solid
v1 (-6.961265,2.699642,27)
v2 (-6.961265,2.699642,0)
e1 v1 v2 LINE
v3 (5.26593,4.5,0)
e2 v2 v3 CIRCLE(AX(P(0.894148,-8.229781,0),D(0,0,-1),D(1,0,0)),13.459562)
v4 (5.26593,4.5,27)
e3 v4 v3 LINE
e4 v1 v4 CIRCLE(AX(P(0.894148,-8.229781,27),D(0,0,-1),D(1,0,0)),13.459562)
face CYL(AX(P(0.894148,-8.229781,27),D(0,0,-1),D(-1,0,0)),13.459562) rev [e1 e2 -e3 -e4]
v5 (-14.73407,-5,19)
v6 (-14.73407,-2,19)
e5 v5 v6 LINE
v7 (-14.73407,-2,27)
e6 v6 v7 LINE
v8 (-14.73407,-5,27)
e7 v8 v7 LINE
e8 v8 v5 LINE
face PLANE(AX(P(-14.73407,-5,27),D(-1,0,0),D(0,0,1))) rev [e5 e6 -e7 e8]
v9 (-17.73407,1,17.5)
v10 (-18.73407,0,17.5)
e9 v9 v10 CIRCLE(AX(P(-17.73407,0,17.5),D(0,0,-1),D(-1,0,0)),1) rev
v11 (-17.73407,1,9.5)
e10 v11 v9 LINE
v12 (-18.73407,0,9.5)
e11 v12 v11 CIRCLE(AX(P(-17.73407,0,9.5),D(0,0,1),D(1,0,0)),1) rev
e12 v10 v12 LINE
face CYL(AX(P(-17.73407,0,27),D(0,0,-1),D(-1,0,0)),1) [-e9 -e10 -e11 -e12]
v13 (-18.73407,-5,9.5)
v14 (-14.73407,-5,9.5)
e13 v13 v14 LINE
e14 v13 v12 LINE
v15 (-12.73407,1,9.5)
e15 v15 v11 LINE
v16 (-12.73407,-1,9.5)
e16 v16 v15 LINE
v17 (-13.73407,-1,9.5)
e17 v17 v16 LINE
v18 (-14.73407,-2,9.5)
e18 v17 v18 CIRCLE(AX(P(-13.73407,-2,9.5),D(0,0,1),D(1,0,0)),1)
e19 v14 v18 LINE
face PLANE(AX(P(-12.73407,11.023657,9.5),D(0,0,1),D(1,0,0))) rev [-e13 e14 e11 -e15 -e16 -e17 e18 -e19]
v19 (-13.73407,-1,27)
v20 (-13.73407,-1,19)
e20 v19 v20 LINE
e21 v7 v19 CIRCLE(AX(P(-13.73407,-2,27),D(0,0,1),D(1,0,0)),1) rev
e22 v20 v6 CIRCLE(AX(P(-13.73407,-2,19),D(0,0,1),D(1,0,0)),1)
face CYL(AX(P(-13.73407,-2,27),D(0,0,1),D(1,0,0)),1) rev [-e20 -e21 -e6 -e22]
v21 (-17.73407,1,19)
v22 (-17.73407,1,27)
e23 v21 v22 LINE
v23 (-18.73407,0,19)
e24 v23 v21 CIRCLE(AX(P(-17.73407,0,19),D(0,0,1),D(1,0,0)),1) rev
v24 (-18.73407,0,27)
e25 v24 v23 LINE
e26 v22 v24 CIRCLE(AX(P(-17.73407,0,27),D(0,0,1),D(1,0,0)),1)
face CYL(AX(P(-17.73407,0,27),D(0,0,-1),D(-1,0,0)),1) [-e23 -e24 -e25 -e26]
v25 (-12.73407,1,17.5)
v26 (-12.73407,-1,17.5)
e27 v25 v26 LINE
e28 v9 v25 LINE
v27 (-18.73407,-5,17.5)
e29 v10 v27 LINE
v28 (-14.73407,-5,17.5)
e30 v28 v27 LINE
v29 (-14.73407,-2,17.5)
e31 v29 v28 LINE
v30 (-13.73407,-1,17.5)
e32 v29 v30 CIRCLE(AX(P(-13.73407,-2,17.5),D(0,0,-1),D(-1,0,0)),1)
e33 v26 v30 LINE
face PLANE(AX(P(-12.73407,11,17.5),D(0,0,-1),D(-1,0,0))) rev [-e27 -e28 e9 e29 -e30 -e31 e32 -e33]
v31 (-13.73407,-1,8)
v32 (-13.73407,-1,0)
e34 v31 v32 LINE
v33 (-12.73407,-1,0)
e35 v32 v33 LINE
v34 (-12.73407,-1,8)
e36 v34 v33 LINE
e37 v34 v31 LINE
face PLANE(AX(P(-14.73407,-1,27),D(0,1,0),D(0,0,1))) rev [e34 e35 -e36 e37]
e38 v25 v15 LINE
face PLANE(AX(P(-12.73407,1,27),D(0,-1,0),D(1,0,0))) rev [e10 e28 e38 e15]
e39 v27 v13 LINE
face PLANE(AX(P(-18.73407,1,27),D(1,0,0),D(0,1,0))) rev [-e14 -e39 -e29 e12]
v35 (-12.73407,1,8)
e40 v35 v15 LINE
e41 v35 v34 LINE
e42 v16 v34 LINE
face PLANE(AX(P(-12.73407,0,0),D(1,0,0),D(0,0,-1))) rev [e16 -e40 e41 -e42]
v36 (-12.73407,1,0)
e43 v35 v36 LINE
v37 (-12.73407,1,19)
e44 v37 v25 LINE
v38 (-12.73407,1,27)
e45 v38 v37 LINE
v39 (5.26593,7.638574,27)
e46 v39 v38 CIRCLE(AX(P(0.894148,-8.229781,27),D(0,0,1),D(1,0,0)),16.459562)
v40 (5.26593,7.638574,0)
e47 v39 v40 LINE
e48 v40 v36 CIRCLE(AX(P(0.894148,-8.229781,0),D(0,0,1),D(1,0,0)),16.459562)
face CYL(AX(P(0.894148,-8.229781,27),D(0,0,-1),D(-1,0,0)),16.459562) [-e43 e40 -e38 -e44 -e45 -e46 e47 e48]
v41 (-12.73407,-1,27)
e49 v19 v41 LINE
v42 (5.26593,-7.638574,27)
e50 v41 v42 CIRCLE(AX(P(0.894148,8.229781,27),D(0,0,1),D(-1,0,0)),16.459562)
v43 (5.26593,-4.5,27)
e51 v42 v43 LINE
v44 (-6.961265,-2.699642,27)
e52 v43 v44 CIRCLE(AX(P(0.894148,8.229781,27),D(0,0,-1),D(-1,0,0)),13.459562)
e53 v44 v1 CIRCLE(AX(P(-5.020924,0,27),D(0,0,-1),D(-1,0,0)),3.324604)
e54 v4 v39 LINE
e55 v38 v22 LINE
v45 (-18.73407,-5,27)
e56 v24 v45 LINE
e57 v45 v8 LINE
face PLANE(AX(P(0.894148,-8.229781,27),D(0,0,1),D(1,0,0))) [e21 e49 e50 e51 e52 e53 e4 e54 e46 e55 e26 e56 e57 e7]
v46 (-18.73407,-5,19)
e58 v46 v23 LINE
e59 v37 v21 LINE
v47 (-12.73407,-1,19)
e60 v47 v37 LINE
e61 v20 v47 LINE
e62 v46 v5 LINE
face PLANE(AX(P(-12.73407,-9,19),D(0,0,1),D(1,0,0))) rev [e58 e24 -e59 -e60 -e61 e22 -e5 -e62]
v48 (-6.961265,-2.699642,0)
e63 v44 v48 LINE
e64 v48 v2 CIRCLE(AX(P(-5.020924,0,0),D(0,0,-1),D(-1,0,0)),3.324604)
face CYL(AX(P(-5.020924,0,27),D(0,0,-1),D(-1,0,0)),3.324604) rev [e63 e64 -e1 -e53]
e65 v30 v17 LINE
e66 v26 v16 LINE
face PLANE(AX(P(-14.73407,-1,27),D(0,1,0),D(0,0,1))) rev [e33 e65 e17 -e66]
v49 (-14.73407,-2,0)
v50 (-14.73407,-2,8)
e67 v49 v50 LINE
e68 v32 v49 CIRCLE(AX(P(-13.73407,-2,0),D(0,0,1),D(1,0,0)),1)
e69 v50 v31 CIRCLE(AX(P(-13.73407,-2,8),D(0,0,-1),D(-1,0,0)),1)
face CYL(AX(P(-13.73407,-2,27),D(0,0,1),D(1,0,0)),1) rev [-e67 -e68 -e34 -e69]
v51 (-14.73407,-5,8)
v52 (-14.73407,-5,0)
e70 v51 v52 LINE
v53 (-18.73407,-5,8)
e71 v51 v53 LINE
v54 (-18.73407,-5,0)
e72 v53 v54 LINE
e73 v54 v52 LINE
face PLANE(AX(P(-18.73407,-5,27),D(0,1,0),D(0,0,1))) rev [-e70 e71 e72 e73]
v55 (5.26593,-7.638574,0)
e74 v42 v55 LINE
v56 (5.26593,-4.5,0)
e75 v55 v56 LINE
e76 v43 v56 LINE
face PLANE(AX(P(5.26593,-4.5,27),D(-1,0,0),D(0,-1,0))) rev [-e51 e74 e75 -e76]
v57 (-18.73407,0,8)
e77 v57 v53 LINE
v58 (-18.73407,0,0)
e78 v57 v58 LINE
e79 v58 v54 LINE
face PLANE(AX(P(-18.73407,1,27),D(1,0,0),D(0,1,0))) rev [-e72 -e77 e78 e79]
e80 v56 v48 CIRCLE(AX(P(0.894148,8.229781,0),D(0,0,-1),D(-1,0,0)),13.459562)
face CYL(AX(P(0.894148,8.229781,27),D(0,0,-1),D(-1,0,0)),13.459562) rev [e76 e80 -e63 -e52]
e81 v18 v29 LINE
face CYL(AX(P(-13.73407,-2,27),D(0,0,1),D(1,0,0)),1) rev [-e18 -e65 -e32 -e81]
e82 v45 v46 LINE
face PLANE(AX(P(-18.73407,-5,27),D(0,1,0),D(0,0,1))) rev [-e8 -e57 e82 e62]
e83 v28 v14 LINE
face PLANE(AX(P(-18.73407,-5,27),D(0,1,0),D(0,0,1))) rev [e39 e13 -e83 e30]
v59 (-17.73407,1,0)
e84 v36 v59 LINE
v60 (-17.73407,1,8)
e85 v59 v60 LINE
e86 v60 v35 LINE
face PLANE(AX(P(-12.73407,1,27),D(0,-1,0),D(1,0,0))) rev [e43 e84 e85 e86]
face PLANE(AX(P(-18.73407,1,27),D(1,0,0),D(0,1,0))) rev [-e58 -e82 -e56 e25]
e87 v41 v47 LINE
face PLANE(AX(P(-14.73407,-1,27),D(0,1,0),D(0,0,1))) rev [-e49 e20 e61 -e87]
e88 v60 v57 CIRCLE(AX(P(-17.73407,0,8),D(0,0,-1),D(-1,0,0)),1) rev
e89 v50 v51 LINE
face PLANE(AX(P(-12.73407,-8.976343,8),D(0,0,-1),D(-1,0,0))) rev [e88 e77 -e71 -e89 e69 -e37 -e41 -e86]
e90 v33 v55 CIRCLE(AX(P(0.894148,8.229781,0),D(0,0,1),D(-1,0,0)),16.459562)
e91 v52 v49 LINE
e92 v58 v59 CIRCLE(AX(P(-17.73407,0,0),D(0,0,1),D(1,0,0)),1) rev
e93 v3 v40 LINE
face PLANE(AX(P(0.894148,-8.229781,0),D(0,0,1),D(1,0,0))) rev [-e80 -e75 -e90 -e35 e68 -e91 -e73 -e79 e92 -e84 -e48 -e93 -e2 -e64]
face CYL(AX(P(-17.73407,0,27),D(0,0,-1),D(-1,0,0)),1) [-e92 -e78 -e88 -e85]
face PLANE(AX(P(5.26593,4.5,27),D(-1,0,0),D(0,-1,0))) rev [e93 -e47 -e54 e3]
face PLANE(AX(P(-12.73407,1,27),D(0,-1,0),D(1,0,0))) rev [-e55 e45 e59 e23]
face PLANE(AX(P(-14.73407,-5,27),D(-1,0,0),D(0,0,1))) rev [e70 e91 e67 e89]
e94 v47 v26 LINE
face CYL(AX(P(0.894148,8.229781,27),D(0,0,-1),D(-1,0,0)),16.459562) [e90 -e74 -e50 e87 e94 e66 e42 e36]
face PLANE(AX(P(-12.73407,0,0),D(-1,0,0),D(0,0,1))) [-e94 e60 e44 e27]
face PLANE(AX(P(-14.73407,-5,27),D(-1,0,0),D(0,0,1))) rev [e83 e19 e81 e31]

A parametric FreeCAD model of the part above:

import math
import FreeCAD as App
import Part
import Sketcher

V = App.Vector
Q = App.Units.Quantity


def edges_at(feature, points):
    """Names of the edges that pass closest to the given points."""
    edges = feature.Shape.Edges
    near = lambda p: min(range(len(edges)), key=lambda i: edges[i].distToShape(Part.Vertex(*p))[0])
    return sorted({f"Edge{near(p) + 1}" for p in points})

doc = App.newDocument("Part")
body = doc.addObject("PartDesign::Body", "Body")

# Sketch on XY plane
sketch1 = doc.addObject("Sketcher::SketchObject", "Sketch")
body.addObject(sketch1)
sketch1.AttachmentSupport = (doc.XY_Plane, [""])
sketch1.MapMode = "FlatFace"
sketch1.addGeometry([
    Part.LineSegment(V(-12.7, 1, 0), V(-18.7, 1, 0)),  # 0
    Part.LineSegment(V(-18.7, 1, 0), V(-18.7, -5, 0)),  # 1
    Part.LineSegment(V(-18.7, -5, 0), V(-14.7, -5, 0)),  # 2
    Part.LineSegment(V(-14.7, -5, 0), V(-14.7, -1, 0)),  # 3
    Part.LineSegment(V(-14.7, -1, 0), V(-12.7, -1, 0)),  # 4
    Part.ArcOfCircle(Part.Circle(V(0.9, 8.2, 0), V(0, 0, 1), 16.5), math.radians(-146), math.radians(-75)),  # 5
    Part.LineSegment(V(5.3, -7.6, 0), V(5.3, -4.5, 0)),  # 6
    Part.ArcOfCircle(Part.Circle(V(0.9, 8.2, 0), V(0, 0, 1), 13.5), math.radians(-126), math.radians(-71)),  # 7
    Part.ArcOfCircle(Part.Circle(V(-5, 0, 0), V(0, 0, 1), 3.3), math.radians(126), math.radians(234)),  # 8
    Part.ArcOfCircle(Part.Circle(V(0.9, -8.2, 0), V(0, 0, 1), 13.5), math.radians(71), math.radians(126)),  # 9
    Part.LineSegment(V(5.3, 4.5, 0), V(5.3, 7.6, 0)),  # 10
    Part.ArcOfCircle(Part.Circle(V(0.9, -8.2, 0), V(0, 0, 1), 16.5), math.radians(75), math.radians(146)),  # 11
], False)
sketch1.addConstraint([
    Sketcher.Constraint("Coincident", 0, 2, 1, 1),
    Sketcher.Constraint("Coincident", 1, 2, 2, 1),
    Sketcher.Constraint("Coincident", 2, 2, 3, 1),
    Sketcher.Constraint("Coincident", 3, 2, 4, 1),
    Sketcher.Constraint("Coincident", 4, 2, 5, 1),
    Sketcher.Constraint("Coincident", 5, 2, 6, 1),
    Sketcher.Constraint("Coincident", 6, 2, 7, 2),
    Sketcher.Constraint("Tangent", 7, 1, 8, 2),
    Sketcher.Constraint("Tangent", 8, 1, 9, 2),
    Sketcher.Constraint("Coincident", 9, 1, 10, 1),
    Sketcher.Constraint("Coincident", 10, 2, 11, 1),
    Sketcher.Constraint("Coincident", 11, 2, 0, 1),
    Sketcher.Constraint("Horizontal", 0),
    Sketcher.Constraint("Vertical", 1),
    Sketcher.Constraint("Horizontal", 2),
    Sketcher.Constraint("Vertical", 3),
    Sketcher.Constraint("Horizontal", 4),
    Sketcher.Constraint("Vertical", 6),
    Sketcher.Constraint("Vertical", 10),
    Sketcher.Constraint("Coincident", 7, 3, 5, 3),
    Sketcher.Constraint("Coincident", 11, 3, 9, 3),
    Sketcher.Constraint("Equal", 7, 9),
    Sketcher.Constraint("Equal", 5, 11),
    Sketcher.Constraint("Symmetric", 5, 3, 9, 3, -1),
    Sketcher.Constraint("Vertical", 6, 2, 9, 1),
    Sketcher.Constraint("Vertical", 4, 2, 11, 2),
    Sketcher.Constraint("Equal", 0, 1),
    Sketcher.Constraint("Equal", 2, 3),
    Sketcher.Constraint("DistanceX", 0, 2, 0, 1, Q("6 mm")),
    Sketcher.Constraint("DistanceX", 2, 1, 2, 2, Q("4 mm")),
    Sketcher.Constraint("DistanceY", 6, 2, 9, 1, Q("9 mm")),
    Sketcher.Constraint("Radius", 5, Q("16.459562 mm")),
    Sketcher.Constraint("Radius", 7, Q("13.459562 mm")),
    Sketcher.Constraint("Radius", 8, Q("3.324604 mm")),
    Sketcher.Constraint("DistanceY", 6, 1, 6, 2, Q("3.138574 mm")),
    Sketcher.Constraint("DistanceX", -1, 1, 5, 3, Q("0.894148 mm")),
])
pad1 = doc.addObject("PartDesign::Pad", "Pad")
body.addObject(pad1)
pad1.Profile = sketch1
pad1.Length = 27

# Sketch on YZ plane
sketch2 = doc.addObject("Sketcher::SketchObject", "Sketch001")
body.addObject(sketch2)
sketch2.AttachmentSupport = (doc.YZ_Plane, [""])
sketch2.MapMode = "FlatFace"
sketch2.AttachmentOffset = App.Placement(V(0, 0, -18.73407), App.Rotation())
sketch2.addGeometry([
    Part.LineSegment(V(11, 8, 0), V(-9, 8, 0)),  # 0
    Part.LineSegment(V(-9, 8, 0), V(-9, 9.5, 0)),  # 1
    Part.LineSegment(V(-9, 9.5, 0), V(11, 9.5, 0)),  # 2
    Part.LineSegment(V(11, 9.5, 0), V(11, 8, 0)),  # 3
    Part.LineSegment(V(11, 17.5, 0), V(-9, 17.5, 0)),  # 4
    Part.LineSegment(V(-9, 17.5, 0), V(-9, 19, 0)),  # 5
    Part.LineSegment(V(-9, 19, 0), V(11, 19, 0)),  # 6
    Part.LineSegment(V(11, 19, 0), V(11, 17.5, 0)),  # 7
], False)
sketch2.addConstraint([
    Sketcher.Constraint("Coincident", 0, 2, 1, 1),
    Sketcher.Constraint("Coincident", 1, 2, 2, 1),
    Sketcher.Constraint("Coincident", 2, 2, 3, 1),
    Sketcher.Constraint("Coincident", 3, 2, 0, 1),
    Sketcher.Constraint("Coincident", 4, 2, 5, 1),
    Sketcher.Constraint("Coincident", 5, 2, 6, 1),
    Sketcher.Constraint("Coincident", 6, 2, 7, 1),
    Sketcher.Constraint("Coincident", 7, 2, 4, 1),
    Sketcher.Constraint("Horizontal", 0),
    Sketcher.Constraint("Vertical", 1),
    Sketcher.Constraint("Horizontal", 2),
    Sketcher.Constraint("Vertical", 3),
    Sketcher.Constraint("Horizontal", 4),
    Sketcher.Constraint("Vertical", 5),
    Sketcher.Constraint("Horizontal", 6),
    Sketcher.Constraint("Vertical", 7),
    Sketcher.Constraint("Equal", 2, 4),
    Sketcher.Constraint("Equal", 3, 5),
    Sketcher.Constraint("DistanceX", 0, 2, 0, 1, Q("20 mm")),
    Sketcher.Constraint("DistanceY", 1, 1, 1, 2, Q("1.5 mm")),
    Sketcher.Constraint("DistanceY", -1, 1, 0, 2, Q("8 mm")),
    Sketcher.Constraint("DistanceX", 4, 2, -1, 1, Q("9 mm")),
    Sketcher.Constraint("DistanceY", -1, 1, 5, 2, Q("19 mm")),
    Sketcher.Constraint("DistanceX", 0, 2, -1, 1, Q("8.976343 mm")),
])
pocket1 = doc.addObject("PartDesign::Pocket", "Pocket")
body.addObject(pocket1)
pocket1.Profile = sketch2
pocket1.Length = 6
pocket1.Reversed = True
doc.recompute()

fillet = doc.addObject("PartDesign::Fillet", "Fillet")
body.addObject(fillet)
fillet.Base = (pocket1, edges_at(pocket1, [
    (-14.734, -1, 23),
    (-18.734, 1, 23),
    (-14.734, -1, 13.5),
    (-14.734, -1, 4),
    (-18.734, 1, 13.5),
    (-18.734, 1, 4),
]))
fillet.Radius = 1

doc.recompute()
